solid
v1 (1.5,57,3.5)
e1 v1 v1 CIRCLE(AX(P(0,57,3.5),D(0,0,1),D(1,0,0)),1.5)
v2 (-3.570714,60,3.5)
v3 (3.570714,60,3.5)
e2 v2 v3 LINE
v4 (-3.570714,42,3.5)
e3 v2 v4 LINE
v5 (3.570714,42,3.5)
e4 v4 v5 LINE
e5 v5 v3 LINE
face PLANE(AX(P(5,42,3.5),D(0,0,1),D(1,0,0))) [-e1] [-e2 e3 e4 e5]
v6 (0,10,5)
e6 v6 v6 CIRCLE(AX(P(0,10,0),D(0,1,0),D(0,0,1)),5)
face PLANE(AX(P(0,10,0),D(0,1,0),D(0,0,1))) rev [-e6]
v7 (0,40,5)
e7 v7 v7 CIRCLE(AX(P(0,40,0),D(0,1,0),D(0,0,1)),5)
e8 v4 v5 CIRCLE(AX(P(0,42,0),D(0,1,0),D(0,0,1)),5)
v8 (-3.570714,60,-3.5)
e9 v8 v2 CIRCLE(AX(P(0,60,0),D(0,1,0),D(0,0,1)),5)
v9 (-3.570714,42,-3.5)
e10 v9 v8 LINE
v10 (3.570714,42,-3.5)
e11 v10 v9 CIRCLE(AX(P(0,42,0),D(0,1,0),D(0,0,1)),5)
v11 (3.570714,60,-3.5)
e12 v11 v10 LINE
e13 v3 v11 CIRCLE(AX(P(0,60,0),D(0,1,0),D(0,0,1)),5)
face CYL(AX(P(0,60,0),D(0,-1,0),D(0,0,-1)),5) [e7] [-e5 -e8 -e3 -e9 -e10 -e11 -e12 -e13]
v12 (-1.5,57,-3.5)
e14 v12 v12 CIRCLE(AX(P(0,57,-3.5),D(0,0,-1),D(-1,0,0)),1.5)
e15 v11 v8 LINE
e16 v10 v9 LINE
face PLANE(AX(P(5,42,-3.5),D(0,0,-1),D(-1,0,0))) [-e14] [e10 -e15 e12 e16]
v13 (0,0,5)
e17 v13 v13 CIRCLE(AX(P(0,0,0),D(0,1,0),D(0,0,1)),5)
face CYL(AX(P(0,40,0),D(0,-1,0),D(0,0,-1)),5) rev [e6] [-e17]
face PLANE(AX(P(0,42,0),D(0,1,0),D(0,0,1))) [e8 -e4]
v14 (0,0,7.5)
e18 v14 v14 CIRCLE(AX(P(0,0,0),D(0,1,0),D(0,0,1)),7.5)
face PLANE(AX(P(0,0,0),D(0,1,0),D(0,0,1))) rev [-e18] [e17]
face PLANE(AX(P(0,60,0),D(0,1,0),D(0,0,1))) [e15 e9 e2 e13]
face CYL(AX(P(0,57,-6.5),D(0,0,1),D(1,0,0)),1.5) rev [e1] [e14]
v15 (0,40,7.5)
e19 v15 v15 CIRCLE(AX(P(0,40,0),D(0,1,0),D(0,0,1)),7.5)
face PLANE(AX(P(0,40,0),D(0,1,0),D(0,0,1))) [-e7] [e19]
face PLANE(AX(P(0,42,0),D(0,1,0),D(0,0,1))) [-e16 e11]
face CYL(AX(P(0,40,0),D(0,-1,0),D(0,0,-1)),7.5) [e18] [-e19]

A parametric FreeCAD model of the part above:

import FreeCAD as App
import Part
import Sketcher
from FreeCAD import Vector
Q = App.Units.Quantity


def add_polygon(sketch, points):
    """Adds a closed chain of lines whose ends are joined by coincident constraints."""
    first, n = sketch.GeometryCount, len(points)
    for a, b in zip(points, points[1:] + points[:1]):
        sketch.addGeometry(Part.LineSegment(App.Vector(*a, 0), App.Vector(*b, 0)), False)
    for i in range(n):
        sketch.addConstraint(Sketcher.Constraint("Coincident", first + i, 2, first + (i + 1) % n, 1))

doc = App.newDocument("Part")
body = doc.addObject("PartDesign::Body", "Body")

sketch1 = body.newObject("Sketcher::SketchObject", "Sketch")
sketch1.AttachmentSupport = (doc.getObject("XZ_Plane"), [""])
sketch1.MapMode = "FlatFace"
sketch1.addGeometry([
    Part.Circle(Vector(0, 0, 0), Vector(0, 0, 1), 7.5),
    Part.Circle(Vector(0, 0, 0), Vector(0, 0, 1), 5),
], False)
sketch1.addConstraint([
    Sketcher.Constraint("Coincident", 0, 3, -1, 1),
    Sketcher.Constraint("Coincident", 1, 3, -1, 1),
    Sketcher.Constraint("Diameter", 0, Q("15 mm")),
    Sketcher.Constraint("Diameter", 1, Q("10 mm")),
])
pad1 = body.newObject("PartDesign::Pad", "Pad")
pad1.Profile = sketch1
pad1.Length = 40
pad1.Reversed = True

sketch2 = body.newObject("Sketcher::SketchObject", "Sketch001")
sketch2.AttachmentSupport = (doc.getObject("XZ_Plane"), [""])
sketch2.MapMode = "FlatFace"
sketch2.AttachmentOffset = App.Placement(Vector(0, 0, -10), App.Rotation())
sketch2.addGeometry(Part.Circle(Vector(0, 0, 0), Vector(0, 0, 1), 5), False)
sketch2.addConstraint([
    Sketcher.Constraint("Coincident", 0, 3, -1, 1),
    Sketcher.Constraint("Diameter", 0, Q("10 mm")),
])
pad2 = body.newObject("PartDesign::Pad", "Pad001")
pad2.Profile = sketch2
pad2.Length = 50
pad2.Reversed = True

sketch3 = body.newObject("Sketcher::SketchObject", "Sketch002")
sketch3.AttachmentSupport = (doc.getObject("XZ_Plane"), [""])
sketch3.MapMode = "FlatFace"
sketch3.AttachmentOffset = App.Placement(Vector(0, 0, -60), App.Rotation())
add_polygon(sketch3, [(-14.864, -14.864), (-14.864, 14.864), (14.864, 14.864), (14.864, -14.864)])
add_polygon(sketch3, [(5, 3.5), (-5, 3.5), (-5, -3.5), (5, -3.5)])
sketch3.addConstraint([
    Sketcher.Constraint("Vertical", 0),
    Sketcher.Constraint("Horizontal", 1),
    Sketcher.Constraint("Vertical", 2),
    Sketcher.Constraint("Horizontal", 3),
    Sketcher.Constraint("Horizontal", 4),
    Sketcher.Constraint("Vertical", 5),
    Sketcher.Constraint("Horizontal", 6),
    Sketcher.Constraint("Vertical", 7),
    Sketcher.Constraint("Symmetric", 0, 2, 2, 2, -1, 1),
    Sketcher.Constraint("Symmetric", 4, 2, 6, 2, -1, 1),
    Sketcher.Constraint("Equal", 3, 0),
    Sketcher.Constraint("DistanceX", 4, 2, 4, 1, Q("10 mm")),
    Sketcher.Constraint("DistanceY", 5, 2, 5, 1, Q("7 mm")),
    Sketcher.Constraint("DistanceX", 1, 1, 1, 2, Q("29.728 mm")),
])
pocket1 = body.newObject("PartDesign::Pocket", "Pocket")
pocket1.Profile = sketch3
pocket1.Length = 18
pocket1.Reversed = True

sketch4 = body.newObject("Sketcher::SketchObject", "Sketch003")
sketch4.AttachmentSupport = (doc.getObject("XY_Plane"), [""])
sketch4.MapMode = "FlatFace"
sketch4.AttachmentOffset = App.Placement(Vector(0, 0, 3.5), App.Rotation())
sketch4.addGeometry(Part.Circle(Vector(0, 57, 0), Vector(0, 0, 1), 1.5), False)
sketch4.addConstraint([
    Sketcher.Constraint("PointOnObject", 0, 3, -2),
    Sketcher.Constraint("Diameter", 0, Q("3 mm")),
    Sketcher.Constraint("DistanceY", -1, 1, 0, 3, Q("57 mm")),
])
pocket2 = body.newObject("PartDesign::Pocket", "Pocket001")
pocket2.Profile = sketch4
pocket2.Length = 10

doc.recompute()
